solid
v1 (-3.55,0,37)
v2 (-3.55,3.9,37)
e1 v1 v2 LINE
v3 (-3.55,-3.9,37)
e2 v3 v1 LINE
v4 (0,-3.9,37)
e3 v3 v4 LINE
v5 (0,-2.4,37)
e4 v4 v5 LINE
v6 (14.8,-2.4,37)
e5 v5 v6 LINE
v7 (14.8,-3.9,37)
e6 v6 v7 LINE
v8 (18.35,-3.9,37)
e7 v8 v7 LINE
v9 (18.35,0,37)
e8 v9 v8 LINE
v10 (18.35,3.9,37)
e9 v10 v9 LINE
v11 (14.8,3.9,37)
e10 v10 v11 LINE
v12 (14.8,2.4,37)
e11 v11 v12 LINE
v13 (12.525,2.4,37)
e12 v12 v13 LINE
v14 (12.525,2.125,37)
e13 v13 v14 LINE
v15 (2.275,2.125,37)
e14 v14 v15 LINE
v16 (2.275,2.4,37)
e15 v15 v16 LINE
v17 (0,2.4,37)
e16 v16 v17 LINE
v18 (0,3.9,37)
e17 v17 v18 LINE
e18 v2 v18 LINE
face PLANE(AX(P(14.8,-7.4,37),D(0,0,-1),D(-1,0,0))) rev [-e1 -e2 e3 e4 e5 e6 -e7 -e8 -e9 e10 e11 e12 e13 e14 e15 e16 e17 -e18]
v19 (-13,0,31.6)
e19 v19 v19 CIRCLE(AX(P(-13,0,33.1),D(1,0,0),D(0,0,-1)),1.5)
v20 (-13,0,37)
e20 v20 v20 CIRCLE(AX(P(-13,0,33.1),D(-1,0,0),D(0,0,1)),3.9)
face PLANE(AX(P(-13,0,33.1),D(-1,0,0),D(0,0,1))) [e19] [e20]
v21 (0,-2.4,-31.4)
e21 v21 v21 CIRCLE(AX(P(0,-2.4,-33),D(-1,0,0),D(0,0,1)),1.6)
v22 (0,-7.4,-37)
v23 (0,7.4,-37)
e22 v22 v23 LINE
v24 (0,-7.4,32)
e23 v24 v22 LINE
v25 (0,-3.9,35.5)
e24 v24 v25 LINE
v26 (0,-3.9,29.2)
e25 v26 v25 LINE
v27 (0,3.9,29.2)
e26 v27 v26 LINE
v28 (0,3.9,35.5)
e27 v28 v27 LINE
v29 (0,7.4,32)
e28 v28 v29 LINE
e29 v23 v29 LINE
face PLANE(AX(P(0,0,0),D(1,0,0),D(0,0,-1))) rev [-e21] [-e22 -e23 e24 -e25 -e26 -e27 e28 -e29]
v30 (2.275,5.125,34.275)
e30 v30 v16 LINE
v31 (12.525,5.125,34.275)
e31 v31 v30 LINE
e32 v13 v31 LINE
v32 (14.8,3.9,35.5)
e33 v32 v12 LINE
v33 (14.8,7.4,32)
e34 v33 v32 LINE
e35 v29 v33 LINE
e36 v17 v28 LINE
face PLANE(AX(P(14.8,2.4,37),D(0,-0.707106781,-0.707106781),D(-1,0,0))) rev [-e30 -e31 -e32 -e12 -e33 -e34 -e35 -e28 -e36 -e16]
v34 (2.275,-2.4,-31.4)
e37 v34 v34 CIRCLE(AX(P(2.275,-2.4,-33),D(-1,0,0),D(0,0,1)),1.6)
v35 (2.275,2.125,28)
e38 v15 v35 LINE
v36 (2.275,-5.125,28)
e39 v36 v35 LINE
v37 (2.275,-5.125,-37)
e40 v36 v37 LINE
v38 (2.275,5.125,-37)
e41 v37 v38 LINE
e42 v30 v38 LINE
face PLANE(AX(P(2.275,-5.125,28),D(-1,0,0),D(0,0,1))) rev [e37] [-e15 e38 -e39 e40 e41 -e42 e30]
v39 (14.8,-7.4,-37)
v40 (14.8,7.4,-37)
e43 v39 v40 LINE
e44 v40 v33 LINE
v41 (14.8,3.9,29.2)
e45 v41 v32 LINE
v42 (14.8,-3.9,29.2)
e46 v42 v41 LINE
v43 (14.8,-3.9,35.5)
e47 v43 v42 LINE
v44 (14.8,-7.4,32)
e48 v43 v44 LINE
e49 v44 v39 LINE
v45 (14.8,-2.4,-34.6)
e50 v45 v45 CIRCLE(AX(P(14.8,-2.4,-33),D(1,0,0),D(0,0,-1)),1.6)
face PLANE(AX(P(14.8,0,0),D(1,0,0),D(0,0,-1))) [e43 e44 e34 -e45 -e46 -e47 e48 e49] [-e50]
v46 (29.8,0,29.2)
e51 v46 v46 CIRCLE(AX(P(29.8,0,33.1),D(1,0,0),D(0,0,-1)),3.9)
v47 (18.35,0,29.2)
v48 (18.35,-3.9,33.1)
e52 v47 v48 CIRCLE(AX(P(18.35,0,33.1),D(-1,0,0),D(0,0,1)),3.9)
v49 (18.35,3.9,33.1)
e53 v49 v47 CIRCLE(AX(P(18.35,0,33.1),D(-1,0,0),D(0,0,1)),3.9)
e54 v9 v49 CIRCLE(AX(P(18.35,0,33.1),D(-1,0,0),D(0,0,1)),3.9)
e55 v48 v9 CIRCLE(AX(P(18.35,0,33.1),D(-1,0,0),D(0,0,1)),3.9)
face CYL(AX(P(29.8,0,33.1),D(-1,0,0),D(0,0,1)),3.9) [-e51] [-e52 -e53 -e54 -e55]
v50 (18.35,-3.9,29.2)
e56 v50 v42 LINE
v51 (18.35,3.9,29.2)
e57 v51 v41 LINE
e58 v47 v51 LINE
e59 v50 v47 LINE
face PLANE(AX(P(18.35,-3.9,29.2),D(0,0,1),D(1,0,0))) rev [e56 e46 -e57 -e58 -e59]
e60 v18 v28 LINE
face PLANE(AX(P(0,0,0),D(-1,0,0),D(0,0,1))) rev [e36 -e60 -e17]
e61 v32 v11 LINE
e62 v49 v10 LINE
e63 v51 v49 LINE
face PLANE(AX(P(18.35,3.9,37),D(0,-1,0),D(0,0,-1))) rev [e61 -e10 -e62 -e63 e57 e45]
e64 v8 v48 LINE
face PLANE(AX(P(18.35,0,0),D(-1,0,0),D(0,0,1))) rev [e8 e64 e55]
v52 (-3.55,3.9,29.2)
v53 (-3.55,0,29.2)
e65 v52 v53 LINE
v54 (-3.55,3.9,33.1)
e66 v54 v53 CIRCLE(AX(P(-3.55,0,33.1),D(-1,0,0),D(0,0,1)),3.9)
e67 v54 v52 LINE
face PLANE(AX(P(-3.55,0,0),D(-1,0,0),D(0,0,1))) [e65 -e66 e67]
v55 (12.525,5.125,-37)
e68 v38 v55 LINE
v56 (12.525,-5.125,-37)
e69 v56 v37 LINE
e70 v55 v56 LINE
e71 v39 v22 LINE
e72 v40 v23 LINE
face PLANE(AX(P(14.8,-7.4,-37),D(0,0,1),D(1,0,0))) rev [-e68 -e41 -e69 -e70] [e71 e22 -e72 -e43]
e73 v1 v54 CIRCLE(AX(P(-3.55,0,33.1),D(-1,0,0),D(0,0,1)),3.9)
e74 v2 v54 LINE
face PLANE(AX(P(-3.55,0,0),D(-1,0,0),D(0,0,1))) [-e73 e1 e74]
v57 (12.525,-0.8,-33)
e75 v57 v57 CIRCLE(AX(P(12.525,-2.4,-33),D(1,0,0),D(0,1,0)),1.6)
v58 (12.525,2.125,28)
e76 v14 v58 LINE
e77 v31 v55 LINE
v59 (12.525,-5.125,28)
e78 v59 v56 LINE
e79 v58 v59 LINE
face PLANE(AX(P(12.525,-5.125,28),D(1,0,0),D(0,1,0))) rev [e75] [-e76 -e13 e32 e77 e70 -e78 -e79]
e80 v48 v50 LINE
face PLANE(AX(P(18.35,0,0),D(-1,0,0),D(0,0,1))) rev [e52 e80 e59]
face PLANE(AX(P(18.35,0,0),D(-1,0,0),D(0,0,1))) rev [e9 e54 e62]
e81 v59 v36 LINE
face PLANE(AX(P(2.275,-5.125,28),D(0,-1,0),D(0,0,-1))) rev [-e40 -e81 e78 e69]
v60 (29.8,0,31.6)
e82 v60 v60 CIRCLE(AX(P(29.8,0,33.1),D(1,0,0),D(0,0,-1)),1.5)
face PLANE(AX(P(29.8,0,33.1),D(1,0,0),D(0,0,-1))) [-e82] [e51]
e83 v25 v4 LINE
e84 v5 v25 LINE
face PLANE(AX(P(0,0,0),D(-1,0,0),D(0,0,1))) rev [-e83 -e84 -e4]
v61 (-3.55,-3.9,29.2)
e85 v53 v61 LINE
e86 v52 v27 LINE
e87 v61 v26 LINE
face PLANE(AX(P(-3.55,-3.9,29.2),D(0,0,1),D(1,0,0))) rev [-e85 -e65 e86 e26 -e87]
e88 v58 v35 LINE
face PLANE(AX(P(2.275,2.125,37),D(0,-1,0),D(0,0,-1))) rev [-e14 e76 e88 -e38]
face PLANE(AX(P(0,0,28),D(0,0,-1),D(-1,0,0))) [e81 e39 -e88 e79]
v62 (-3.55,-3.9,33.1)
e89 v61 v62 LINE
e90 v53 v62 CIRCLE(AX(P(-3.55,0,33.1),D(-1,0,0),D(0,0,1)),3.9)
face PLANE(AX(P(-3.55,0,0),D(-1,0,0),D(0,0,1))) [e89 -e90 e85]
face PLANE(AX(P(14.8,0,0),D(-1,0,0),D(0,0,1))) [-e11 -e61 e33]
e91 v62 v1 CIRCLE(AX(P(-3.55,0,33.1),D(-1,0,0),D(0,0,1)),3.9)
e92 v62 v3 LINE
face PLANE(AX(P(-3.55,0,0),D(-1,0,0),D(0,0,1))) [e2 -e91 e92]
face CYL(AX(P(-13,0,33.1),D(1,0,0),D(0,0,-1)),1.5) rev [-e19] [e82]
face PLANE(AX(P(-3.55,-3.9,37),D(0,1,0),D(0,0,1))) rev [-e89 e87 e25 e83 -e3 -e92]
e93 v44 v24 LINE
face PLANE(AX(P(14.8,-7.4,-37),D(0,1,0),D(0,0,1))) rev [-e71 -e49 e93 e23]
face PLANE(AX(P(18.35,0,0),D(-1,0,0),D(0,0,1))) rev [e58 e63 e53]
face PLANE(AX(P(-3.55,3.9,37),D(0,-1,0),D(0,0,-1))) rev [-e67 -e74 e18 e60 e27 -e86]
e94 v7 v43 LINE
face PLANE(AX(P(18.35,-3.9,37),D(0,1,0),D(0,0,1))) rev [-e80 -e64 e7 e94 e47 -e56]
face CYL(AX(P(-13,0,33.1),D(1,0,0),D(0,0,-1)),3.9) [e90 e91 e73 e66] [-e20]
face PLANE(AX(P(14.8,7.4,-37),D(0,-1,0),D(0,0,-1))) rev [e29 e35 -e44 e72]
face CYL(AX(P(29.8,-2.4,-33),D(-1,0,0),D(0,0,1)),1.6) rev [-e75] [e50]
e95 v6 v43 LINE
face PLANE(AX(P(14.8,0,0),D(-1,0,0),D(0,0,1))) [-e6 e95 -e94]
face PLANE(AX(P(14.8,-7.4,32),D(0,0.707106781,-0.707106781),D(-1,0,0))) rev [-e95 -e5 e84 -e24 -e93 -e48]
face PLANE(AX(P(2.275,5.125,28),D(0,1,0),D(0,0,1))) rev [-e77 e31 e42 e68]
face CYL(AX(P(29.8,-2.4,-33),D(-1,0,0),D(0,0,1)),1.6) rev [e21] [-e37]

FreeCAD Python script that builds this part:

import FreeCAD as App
import Part
import Sketcher
from FreeCAD import Vector
Q = App.Units.Quantity


def edges_at(feature, points):
    """Names of the edges that pass closest to the given points."""
    edges = feature.Shape.Edges
    near = lambda p: min(range(len(edges)), key=lambda i: edges[i].distToShape(Part.Vertex(*p))[0])
    return sorted({f"Edge{near(p) + 1}" for p in points})


def add_polygon(sketch, points):
    """Adds a closed chain of lines whose ends are joined by coincident constraints."""
    first, n = sketch.GeometryCount, len(points)
    for a, b in zip(points, points[1:] + points[:1]):
        sketch.addGeometry(Part.LineSegment(App.Vector(*a, 0), App.Vector(*b, 0)), False)
    for i in range(n):
        sketch.addConstraint(Sketcher.Constraint("Coincident", first + i, 2, first + (i + 1) % n, 1))

doc = App.newDocument("Part")
body = doc.addObject("PartDesign::Body", "Body")

sketch1 = body.newObject("Sketcher::SketchObject", "Sketch")
sketch1.AttachmentSupport = (doc.getObject("YZ_Plane"), [""])
sketch1.MapMode = "FlatFace"
add_polygon(sketch1, [(7, 37), (-7, 37), (-7, -37), (7, -37)])
sketch1.addConstraint([
    Sketcher.Constraint("Horizontal", 0),
    Sketcher.Constraint("Vertical", 1),
    Sketcher.Constraint("Horizontal", 2),
    Sketcher.Constraint("Vertical", 3),
    Sketcher.Constraint("Symmetric", 0, 2, 2, 2, -1, 1),
    Sketcher.Constraint("DistanceY", 1, 2, 1, 1, Q("74 mm")),
    Sketcher.Constraint("DistanceX", 0, 2, 0, 1, Q("14.8 mm")),
])
pad1 = body.newObject("PartDesign::Pad", "Pad")
pad1.Profile = sketch1
pad1.Length = 14.8

sketch2 = body.newObject("Sketcher::SketchObject", "Sketch001")
sketch2.AttachmentSupport = (doc.getObject("XY_Plane"), [""])
sketch2.MapMode = "FlatFace"
sketch2.AttachmentOffset = App.Placement(Vector(0, 0, -37), App.Rotation())
add_polygon(sketch2, [(13, 5), (13, -5), (2, -5), (2, 5)])
sketch2.addConstraint([
    Sketcher.Constraint("Vertical", 0),
    Sketcher.Constraint("Horizontal", 1),
    Sketcher.Constraint("Vertical", 2),
    Sketcher.Constraint("Horizontal", 3),
    Sketcher.Constraint("Equal", 3, 0),
    Sketcher.Constraint("DistanceX", 1, 2, 1, 1, Q("10.25 mm")),
    Sketcher.Constraint("DistanceX", -1, 1, 0, 2, Q("12.525 mm")),
    Sketcher.Constraint("DistanceY", 0, 2, -1, 1, Q("5.125 mm")),
])
pocket1 = body.newObject("PartDesign::Pocket", "Pocket")
pocket1.Profile = sketch2
pocket1.Length = 65
pocket1.Reversed = True

sketch3 = body.newObject("Sketcher::SketchObject", "Sketch002")
sketch3.AttachmentSupport = (doc.getObject("YZ_Plane"), [""])
sketch3.MapMode = "FlatFace"
sketch3.AttachmentOffset = App.Placement(Vector(0, 0, 14.8), App.Rotation())
sketch3.addGeometry(Part.Circle(Vector(0, 33.1, 0), Vector(0, 0, 1), 3.9), False)
sketch3.addConstraint([
    Sketcher.Constraint("PointOnObject", 0, 3, -2),
    Sketcher.Constraint("Diameter", 0, Q("7.8 mm")),
    Sketcher.Constraint("DistanceY", -1, 1, 0, 3, Q("33.1 mm")),
])
pad2 = body.newObject("PartDesign::Pad", "Pad001")
pad2.Profile = sketch3
pad2.Length = 15

sketch4 = body.newObject("Sketcher::SketchObject", "Sketch003")
sketch4.AttachmentSupport = (doc.getObject("YZ_Plane"), [""])
sketch4.MapMode = "FlatFace"
sketch4.addGeometry(Part.Circle(Vector(0, 33.1, 0), Vector(0, 0, 1), 3.9), False)
sketch4.addConstraint([
    Sketcher.Constraint("PointOnObject", 0, 3, -2),
    Sketcher.Constraint("Diameter", 0, Q("7.8 mm")),
    Sketcher.Constraint("DistanceY", -1, 1, 0, 3, Q("33.1 mm")),
])
pad3 = body.newObject("PartDesign::Pad", "Pad002")
pad3.Profile = sketch4
pad3.Length = 13
pad3.Reversed = True
doc.recompute()

chamfer = body.newObject("PartDesign::Chamfer", "Chamfer")
chamfer.Base = (pad3, edges_at(pad3, [(7.4, 7.4, 37), (7.4, -7.4, 37)]))
chamfer.Size = 5

sketch5 = body.newObject("Sketcher::SketchObject", "Sketch004")
sketch5.AttachmentSupport = (doc.getObject("YZ_Plane"), [""])
sketch5.MapMode = "FlatFace"
sketch5.AttachmentOffset = App.Placement(Vector(0, 0, 29.8), App.Rotation())
sketch5.addGeometry(Part.Circle(Vector(0, 33.1, 0), Vector(0, 0, 1), 1.4), False)
sketch5.addConstraint([
    Sketcher.Constraint("PointOnObject", 0, 3, -2),
    Sketcher.Constraint("Diameter", 0, Q("2.9 mm")),
    Sketcher.Constraint("DistanceY", -1, 1, 0, 3, Q("33.1 mm")),
])
pocket2 = body.newObject("PartDesign::Pocket", "Pocket001")
pocket2.Profile = sketch5
pocket2.Type = "ThroughAll"

sketch6 = body.newObject("Sketcher::SketchObject", "Sketch005")
sketch6.AttachmentSupport = (doc.getObject("YZ_Plane"), [""])
sketch6.MapMode = "FlatFace"
add_polygon(sketch6, [(3.9, 29.2), (-3.9, 29.2), (-3.9, 37), (3.9, 37)])
sketch6.addGeometry(Part.Circle(Vector(0, 33.1, 0), Vector(0, 0, 1), 1.5), False)
sketch6.addConstraint([
    Sketcher.Constraint("Horizontal", 0),
    Sketcher.Constraint("Vertical", 1),
    Sketcher.Constraint("Horizontal", 2),
    Sketcher.Constraint("Vertical", 3),
    Sketcher.Constraint("PointOnObject", 4, 3, -2),
    Sketcher.Constraint("Equal", 2, 1),
    Sketcher.Constraint("Diameter", 4, Q("3 mm")),
    Sketcher.Constraint("DistanceX", 0, 2, 0, 1, Q("7.8 mm")),
    Sketcher.Constraint("DistanceY", -1, 1, 1, 2, Q("37 mm")),
    Sketcher.Constraint("DistanceY", -1, 1, 4, 3, Q("33.1 mm")),
    Sketcher.Constraint("DistanceX", 0, 2, -1, 1, Q("3.9 mm")),
])
pad4 = body.newObject("PartDesign::Pad", "Pad003")
pad4.Profile = sketch6
pad4.Length = 3.55
pad4.Reversed = True

sketch7 = body.newObject("Sketcher::SketchObject", "Sketch006")
sketch7.AttachmentSupport = (doc.getObject("YZ_Plane"), [""])
sketch7.MapMode = "FlatFace"
sketch7.AttachmentOffset = App.Placement(Vector(0, 0, 14.8), App.Rotation())
add_polygon(sketch7, [(4, 37), (-4, 37), (-4, 29), (4, 29)])
sketch7.addConstraint([
    Sketcher.Constraint("Horizontal", 0),
    Sketcher.Constraint("Vertical", 1),
    Sketcher.Constraint("Horizontal", 2),
    Sketcher.Constraint("Vertical", 3),
    Sketcher.Constraint("Equal", 2, 1),
    Sketcher.Constraint("DistanceX", 0, 2, 0, 1, Q("7.8 mm")),
    Sketcher.Constraint("DistanceY", -1, 1, 0, 2, Q("37 mm")),
    Sketcher.Constraint("DistanceX", 0, 2, -1, 1, Q("3.9 mm")),
])
pad5 = body.newObject("PartDesign::Pad", "Pad004")
pad5.Profile = sketch7
pad5.Length = 3.55

sketch8 = body.newObject("Sketcher::SketchObject", "Sketch007")
sketch8.AttachmentSupport = (doc.getObject("YZ_Plane"), [""])
sketch8.MapMode = "FlatFace"
sketch8.addGeometry(Part.Circle(Vector(-2.4, -33, 0), Vector(0, 0, 1), 1.6), False)
sketch8.addConstraint([
    Sketcher.Constraint("Diameter", 0, Q("3.2 mm")),
    Sketcher.Constraint("DistanceY", 0, 3, -1, 1, Q("33 mm")),
    Sketcher.Constraint("DistanceX", 0, 3, -1, 1, Q("2.4 mm")),
])
pocket3 = body.newObject("PartDesign::Pocket", "Pocket002")
pocket3.Profile = sketch8
pocket3.Type = "ThroughAll"
pocket3.Reversed = True

sketch9 = body.newObject("Sketcher::SketchObject", "Sketch008")
sketch9.AttachmentSupport = (doc.getObject("YZ_Plane"), [""])
sketch9.MapMode = "FlatFace"
sketch9.AttachmentOffset = App.Placement(Vector(0, 0, 29.8), App.Rotation())
sketch9.addGeometry(Part.Circle(Vector(0, 33.1, 0), Vector(0, 0, 1), 1.5), False)
sketch9.addConstraint([
    Sketcher.Constraint("PointOnObject", 0, 3, -2),
    Sketcher.Constraint("Diameter", 0, Q("3 mm")),
    Sketcher.Constraint("DistanceY", -1, 1, 0, 3, Q("33.1 mm")),
])
pocket4 = body.newObject("PartDesign::Pocket", "Pocket003")
pocket4.Profile = sketch9
pocket4.Type = "ThroughAll"

sketch10 = body.newObject("Sketcher::SketchObject", "Sketch009")
sketch10.AttachmentSupport = (doc.getObject("XY_Plane"), [""])
sketch10.MapMode = "FlatFace"
sketch10.AttachmentOffset = App.Placement(Vector(0, 0, 28), App.Rotation())
add_polygon(sketch10, [(12.5, 5.1), (12.5, 2.1), (2.3, 2.1), (2.3, 5.1)])
sketch10.addConstraint([
    Sketcher.Constraint("Vertical", 0),
    Sketcher.Constraint("Horizontal", 1),
    Sketcher.Constraint("Vertical", 2),
    Sketcher.Constraint("Horizontal", 3),
    Sketcher.Constraint("DistanceY", 0, 2, 0, 1, Q("3 mm")),
    Sketcher.Constraint("DistanceX", 1, 2, 1, 1, Q("10.25 mm")),
    Sketcher.Constraint("DistanceX", -1, 1, 0, 2, Q("12.525 mm")),
    Sketcher.Constraint("DistanceY", -1, 1, 0, 2, Q("2.125 mm")),
])
pocket5 = body.newObject("PartDesign::Pocket", "Pocket004")
pocket5.Profile = sketch10
pocket5.Type = "ThroughAll"
pocket5.Reversed = True

doc.recompute()
